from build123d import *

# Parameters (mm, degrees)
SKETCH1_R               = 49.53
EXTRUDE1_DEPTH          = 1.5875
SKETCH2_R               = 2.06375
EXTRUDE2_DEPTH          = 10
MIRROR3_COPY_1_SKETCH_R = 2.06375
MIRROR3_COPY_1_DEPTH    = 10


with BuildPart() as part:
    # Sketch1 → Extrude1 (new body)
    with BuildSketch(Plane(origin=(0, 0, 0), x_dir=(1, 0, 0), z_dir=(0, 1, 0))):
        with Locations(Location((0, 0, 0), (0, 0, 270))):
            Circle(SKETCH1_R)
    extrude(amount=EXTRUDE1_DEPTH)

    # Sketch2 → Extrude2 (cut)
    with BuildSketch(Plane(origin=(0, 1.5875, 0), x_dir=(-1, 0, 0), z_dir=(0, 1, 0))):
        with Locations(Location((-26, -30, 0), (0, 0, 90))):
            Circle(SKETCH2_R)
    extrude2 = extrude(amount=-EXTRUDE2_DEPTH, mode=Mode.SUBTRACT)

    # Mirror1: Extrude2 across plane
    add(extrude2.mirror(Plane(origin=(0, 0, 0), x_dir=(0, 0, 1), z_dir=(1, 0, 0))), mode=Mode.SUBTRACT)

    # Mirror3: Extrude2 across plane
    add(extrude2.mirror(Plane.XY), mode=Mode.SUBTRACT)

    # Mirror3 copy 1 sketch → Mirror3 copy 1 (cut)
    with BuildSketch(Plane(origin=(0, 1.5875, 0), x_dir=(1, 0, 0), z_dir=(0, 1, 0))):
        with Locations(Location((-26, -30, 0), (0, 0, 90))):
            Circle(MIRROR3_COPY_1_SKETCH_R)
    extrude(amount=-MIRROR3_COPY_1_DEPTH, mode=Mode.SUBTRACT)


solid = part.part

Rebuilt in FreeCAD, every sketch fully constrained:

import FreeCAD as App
import Part
import Sketcher
Q = App.Units.Quantity

doc = App.newDocument("Part")
body = doc.addObject("PartDesign::Body", "Body")

sketch1 = body.newObject("Sketcher::SketchObject", "Sketch")
sketch1.AttachmentSupport = (doc.getObject("XZ_Plane"), [""])
sketch1.MapMode = "FlatFace"
sketch1.addGeometry(Part.Circle(App.Vector(0, 0, 0), App.Vector(0, 0, 1), 50), False)
sketch1.addConstraint([
    Sketcher.Constraint("Coincident", 0, 3, -1, 1),
    Sketcher.Constraint("Diameter", 0, Q("3.9 in")),
])
pad1 = body.newObject("PartDesign::Pad", "Pad")
pad1.Profile = sketch1
pad1.Length = Q("0.0625 in")
pad1.Reversed = True

sketch2 = body.newObject("Sketcher::SketchObject", "Sketch001")
sketch2.AttachmentSupport = (doc.getObject("XZ_Plane"), [""])
sketch2.MapMode = "FlatFace"
sketch2.AttachmentOffset = App.Placement(App.Vector(0, 0, -0.0625 * 25.4), App.Rotation())
sketch2.addGeometry(Part.Circle(App.Vector(26, -30, 0), App.Vector(0, 0, 1), 2.1), False)
sketch2.addConstraint([
    Sketcher.Constraint("Diameter", 0, Q("0.1625 in")),
    Sketcher.Constraint("DistanceX", -1, 1, 0, 3, 26.0),
    Sketcher.Constraint("DistanceY", 0, 3, -1, 1, 30.0),
])
pocket1 = body.newObject("PartDesign::Pocket", "Pocket")
pocket1.Profile = sketch2
pocket1.Length = 10
pocket1.Reversed = True
doc.recompute()

mirrored = body.newObject("PartDesign::Mirrored", "Mirrored")
mirrored.Originals = [pocket1]
mirrored.MirrorPlane = (doc.getObject("YZ_Plane"), [""])
body.Tip = mirrored
doc.recompute()

mirrored2 = body.newObject("PartDesign::Mirrored", "Mirrored001")
mirrored2.Originals = [pocket1]
mirrored2.MirrorPlane = (doc.getObject("XY_Plane"), [""])
body.Tip = mirrored2

sketch3 = body.newObject("Sketcher::SketchObject", "Sketch002")
sketch3.AttachmentSupport = (doc.getObject("XZ_Plane"), [""])
sketch3.MapMode = "FlatFace"
sketch3.AttachmentOffset = App.Placement(App.Vector(0, 0, -0.0625 * 25.4), App.Rotation())
sketch3.addGeometry(Part.Circle(App.Vector(-26, 30, 0), App.Vector(0, 0, 1), 2.1), False)
sketch3.addConstraint([
    Sketcher.Constraint("Diameter", 0, Q("0.1625 in")),
    Sketcher.Constraint("DistanceX", 0, 3, -1, 1, 26.0),
    Sketcher.Constraint("DistanceY", -1, 1, 0, 3, 30.0),
])
pocket2 = body.newObject("PartDesign::Pocket", "Pocket001")
pocket2.Profile = sketch3
pocket2.Length = 10
pocket2.Reversed = True

doc.recompute()
